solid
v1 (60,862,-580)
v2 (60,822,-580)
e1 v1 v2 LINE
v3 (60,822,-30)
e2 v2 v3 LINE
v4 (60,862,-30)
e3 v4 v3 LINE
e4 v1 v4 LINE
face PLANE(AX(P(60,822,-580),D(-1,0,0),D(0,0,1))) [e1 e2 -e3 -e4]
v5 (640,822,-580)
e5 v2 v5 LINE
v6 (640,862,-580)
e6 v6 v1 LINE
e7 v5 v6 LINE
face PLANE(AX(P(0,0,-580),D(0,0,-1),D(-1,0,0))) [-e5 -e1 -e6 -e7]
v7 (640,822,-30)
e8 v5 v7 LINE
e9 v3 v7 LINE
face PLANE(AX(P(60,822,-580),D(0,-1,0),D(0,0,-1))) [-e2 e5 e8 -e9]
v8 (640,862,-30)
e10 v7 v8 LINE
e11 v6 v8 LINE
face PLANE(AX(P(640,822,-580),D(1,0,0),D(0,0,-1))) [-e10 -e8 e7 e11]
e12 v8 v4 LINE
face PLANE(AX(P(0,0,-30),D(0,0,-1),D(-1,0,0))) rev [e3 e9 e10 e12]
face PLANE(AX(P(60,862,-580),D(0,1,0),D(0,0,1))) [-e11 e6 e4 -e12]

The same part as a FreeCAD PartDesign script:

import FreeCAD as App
import Part
import Sketcher
from FreeCAD import Vector


def add_polygon(sketch, points):
    """Adds a closed chain of lines whose ends are joined by coincident constraints."""
    first, n = sketch.GeometryCount, len(points)
    for a, b in zip(points, points[1:] + points[:1]):
        sketch.addGeometry(Part.LineSegment(App.Vector(*a, 0), App.Vector(*b, 0)), False)
    for i in range(n):
        sketch.addConstraint(Sketcher.Constraint("Coincident", first + i, 2, first + (i + 1) % n, 1))

doc = App.newDocument("Part")
body = doc.addObject("PartDesign::Body", "Body")

sketch1 = doc.addObject("Sketcher::SketchObject", "Sketch")
body.addObject(sketch1)
sketch1.AttachmentSupport = (doc.XY_Plane, [""])
sketch1.MapMode = "FlatFace"
sketch1.AttachmentOffset = App.Placement(Vector(0, 0, -30), App.Rotation())
add_polygon(sketch1, [(60, 862), (60, 822), (640, 822), (640, 862)])
sketch1.addConstraint(Sketcher.Constraint("Vertical", 0))
sketch1.addConstraint(Sketcher.Constraint("Horizontal", 1))
sketch1.addConstraint(Sketcher.Constraint("Vertical", 2))
sketch1.addConstraint(Sketcher.Constraint("Horizontal", 3))
sketch1.addConstraint(Sketcher.Constraint("DistanceX", 1, 1, 1, 2, 580.0))
sketch1.addConstraint(Sketcher.Constraint("DistanceY", 0, 2, 0, 1, 40.0))
sketch1.addConstraint(Sketcher.Constraint("DistanceX", -1, 1, 0, 2, 60.0))
sketch1.addConstraint(Sketcher.Constraint("DistanceY", -1, 1, 0, 2, 822.0))
pad1 = doc.addObject("PartDesign::Pad", "Pad")
body.addObject(pad1)
pad1.Profile = sketch1
pad1.Length = 550
pad1.Reversed = True

doc.recompute()
